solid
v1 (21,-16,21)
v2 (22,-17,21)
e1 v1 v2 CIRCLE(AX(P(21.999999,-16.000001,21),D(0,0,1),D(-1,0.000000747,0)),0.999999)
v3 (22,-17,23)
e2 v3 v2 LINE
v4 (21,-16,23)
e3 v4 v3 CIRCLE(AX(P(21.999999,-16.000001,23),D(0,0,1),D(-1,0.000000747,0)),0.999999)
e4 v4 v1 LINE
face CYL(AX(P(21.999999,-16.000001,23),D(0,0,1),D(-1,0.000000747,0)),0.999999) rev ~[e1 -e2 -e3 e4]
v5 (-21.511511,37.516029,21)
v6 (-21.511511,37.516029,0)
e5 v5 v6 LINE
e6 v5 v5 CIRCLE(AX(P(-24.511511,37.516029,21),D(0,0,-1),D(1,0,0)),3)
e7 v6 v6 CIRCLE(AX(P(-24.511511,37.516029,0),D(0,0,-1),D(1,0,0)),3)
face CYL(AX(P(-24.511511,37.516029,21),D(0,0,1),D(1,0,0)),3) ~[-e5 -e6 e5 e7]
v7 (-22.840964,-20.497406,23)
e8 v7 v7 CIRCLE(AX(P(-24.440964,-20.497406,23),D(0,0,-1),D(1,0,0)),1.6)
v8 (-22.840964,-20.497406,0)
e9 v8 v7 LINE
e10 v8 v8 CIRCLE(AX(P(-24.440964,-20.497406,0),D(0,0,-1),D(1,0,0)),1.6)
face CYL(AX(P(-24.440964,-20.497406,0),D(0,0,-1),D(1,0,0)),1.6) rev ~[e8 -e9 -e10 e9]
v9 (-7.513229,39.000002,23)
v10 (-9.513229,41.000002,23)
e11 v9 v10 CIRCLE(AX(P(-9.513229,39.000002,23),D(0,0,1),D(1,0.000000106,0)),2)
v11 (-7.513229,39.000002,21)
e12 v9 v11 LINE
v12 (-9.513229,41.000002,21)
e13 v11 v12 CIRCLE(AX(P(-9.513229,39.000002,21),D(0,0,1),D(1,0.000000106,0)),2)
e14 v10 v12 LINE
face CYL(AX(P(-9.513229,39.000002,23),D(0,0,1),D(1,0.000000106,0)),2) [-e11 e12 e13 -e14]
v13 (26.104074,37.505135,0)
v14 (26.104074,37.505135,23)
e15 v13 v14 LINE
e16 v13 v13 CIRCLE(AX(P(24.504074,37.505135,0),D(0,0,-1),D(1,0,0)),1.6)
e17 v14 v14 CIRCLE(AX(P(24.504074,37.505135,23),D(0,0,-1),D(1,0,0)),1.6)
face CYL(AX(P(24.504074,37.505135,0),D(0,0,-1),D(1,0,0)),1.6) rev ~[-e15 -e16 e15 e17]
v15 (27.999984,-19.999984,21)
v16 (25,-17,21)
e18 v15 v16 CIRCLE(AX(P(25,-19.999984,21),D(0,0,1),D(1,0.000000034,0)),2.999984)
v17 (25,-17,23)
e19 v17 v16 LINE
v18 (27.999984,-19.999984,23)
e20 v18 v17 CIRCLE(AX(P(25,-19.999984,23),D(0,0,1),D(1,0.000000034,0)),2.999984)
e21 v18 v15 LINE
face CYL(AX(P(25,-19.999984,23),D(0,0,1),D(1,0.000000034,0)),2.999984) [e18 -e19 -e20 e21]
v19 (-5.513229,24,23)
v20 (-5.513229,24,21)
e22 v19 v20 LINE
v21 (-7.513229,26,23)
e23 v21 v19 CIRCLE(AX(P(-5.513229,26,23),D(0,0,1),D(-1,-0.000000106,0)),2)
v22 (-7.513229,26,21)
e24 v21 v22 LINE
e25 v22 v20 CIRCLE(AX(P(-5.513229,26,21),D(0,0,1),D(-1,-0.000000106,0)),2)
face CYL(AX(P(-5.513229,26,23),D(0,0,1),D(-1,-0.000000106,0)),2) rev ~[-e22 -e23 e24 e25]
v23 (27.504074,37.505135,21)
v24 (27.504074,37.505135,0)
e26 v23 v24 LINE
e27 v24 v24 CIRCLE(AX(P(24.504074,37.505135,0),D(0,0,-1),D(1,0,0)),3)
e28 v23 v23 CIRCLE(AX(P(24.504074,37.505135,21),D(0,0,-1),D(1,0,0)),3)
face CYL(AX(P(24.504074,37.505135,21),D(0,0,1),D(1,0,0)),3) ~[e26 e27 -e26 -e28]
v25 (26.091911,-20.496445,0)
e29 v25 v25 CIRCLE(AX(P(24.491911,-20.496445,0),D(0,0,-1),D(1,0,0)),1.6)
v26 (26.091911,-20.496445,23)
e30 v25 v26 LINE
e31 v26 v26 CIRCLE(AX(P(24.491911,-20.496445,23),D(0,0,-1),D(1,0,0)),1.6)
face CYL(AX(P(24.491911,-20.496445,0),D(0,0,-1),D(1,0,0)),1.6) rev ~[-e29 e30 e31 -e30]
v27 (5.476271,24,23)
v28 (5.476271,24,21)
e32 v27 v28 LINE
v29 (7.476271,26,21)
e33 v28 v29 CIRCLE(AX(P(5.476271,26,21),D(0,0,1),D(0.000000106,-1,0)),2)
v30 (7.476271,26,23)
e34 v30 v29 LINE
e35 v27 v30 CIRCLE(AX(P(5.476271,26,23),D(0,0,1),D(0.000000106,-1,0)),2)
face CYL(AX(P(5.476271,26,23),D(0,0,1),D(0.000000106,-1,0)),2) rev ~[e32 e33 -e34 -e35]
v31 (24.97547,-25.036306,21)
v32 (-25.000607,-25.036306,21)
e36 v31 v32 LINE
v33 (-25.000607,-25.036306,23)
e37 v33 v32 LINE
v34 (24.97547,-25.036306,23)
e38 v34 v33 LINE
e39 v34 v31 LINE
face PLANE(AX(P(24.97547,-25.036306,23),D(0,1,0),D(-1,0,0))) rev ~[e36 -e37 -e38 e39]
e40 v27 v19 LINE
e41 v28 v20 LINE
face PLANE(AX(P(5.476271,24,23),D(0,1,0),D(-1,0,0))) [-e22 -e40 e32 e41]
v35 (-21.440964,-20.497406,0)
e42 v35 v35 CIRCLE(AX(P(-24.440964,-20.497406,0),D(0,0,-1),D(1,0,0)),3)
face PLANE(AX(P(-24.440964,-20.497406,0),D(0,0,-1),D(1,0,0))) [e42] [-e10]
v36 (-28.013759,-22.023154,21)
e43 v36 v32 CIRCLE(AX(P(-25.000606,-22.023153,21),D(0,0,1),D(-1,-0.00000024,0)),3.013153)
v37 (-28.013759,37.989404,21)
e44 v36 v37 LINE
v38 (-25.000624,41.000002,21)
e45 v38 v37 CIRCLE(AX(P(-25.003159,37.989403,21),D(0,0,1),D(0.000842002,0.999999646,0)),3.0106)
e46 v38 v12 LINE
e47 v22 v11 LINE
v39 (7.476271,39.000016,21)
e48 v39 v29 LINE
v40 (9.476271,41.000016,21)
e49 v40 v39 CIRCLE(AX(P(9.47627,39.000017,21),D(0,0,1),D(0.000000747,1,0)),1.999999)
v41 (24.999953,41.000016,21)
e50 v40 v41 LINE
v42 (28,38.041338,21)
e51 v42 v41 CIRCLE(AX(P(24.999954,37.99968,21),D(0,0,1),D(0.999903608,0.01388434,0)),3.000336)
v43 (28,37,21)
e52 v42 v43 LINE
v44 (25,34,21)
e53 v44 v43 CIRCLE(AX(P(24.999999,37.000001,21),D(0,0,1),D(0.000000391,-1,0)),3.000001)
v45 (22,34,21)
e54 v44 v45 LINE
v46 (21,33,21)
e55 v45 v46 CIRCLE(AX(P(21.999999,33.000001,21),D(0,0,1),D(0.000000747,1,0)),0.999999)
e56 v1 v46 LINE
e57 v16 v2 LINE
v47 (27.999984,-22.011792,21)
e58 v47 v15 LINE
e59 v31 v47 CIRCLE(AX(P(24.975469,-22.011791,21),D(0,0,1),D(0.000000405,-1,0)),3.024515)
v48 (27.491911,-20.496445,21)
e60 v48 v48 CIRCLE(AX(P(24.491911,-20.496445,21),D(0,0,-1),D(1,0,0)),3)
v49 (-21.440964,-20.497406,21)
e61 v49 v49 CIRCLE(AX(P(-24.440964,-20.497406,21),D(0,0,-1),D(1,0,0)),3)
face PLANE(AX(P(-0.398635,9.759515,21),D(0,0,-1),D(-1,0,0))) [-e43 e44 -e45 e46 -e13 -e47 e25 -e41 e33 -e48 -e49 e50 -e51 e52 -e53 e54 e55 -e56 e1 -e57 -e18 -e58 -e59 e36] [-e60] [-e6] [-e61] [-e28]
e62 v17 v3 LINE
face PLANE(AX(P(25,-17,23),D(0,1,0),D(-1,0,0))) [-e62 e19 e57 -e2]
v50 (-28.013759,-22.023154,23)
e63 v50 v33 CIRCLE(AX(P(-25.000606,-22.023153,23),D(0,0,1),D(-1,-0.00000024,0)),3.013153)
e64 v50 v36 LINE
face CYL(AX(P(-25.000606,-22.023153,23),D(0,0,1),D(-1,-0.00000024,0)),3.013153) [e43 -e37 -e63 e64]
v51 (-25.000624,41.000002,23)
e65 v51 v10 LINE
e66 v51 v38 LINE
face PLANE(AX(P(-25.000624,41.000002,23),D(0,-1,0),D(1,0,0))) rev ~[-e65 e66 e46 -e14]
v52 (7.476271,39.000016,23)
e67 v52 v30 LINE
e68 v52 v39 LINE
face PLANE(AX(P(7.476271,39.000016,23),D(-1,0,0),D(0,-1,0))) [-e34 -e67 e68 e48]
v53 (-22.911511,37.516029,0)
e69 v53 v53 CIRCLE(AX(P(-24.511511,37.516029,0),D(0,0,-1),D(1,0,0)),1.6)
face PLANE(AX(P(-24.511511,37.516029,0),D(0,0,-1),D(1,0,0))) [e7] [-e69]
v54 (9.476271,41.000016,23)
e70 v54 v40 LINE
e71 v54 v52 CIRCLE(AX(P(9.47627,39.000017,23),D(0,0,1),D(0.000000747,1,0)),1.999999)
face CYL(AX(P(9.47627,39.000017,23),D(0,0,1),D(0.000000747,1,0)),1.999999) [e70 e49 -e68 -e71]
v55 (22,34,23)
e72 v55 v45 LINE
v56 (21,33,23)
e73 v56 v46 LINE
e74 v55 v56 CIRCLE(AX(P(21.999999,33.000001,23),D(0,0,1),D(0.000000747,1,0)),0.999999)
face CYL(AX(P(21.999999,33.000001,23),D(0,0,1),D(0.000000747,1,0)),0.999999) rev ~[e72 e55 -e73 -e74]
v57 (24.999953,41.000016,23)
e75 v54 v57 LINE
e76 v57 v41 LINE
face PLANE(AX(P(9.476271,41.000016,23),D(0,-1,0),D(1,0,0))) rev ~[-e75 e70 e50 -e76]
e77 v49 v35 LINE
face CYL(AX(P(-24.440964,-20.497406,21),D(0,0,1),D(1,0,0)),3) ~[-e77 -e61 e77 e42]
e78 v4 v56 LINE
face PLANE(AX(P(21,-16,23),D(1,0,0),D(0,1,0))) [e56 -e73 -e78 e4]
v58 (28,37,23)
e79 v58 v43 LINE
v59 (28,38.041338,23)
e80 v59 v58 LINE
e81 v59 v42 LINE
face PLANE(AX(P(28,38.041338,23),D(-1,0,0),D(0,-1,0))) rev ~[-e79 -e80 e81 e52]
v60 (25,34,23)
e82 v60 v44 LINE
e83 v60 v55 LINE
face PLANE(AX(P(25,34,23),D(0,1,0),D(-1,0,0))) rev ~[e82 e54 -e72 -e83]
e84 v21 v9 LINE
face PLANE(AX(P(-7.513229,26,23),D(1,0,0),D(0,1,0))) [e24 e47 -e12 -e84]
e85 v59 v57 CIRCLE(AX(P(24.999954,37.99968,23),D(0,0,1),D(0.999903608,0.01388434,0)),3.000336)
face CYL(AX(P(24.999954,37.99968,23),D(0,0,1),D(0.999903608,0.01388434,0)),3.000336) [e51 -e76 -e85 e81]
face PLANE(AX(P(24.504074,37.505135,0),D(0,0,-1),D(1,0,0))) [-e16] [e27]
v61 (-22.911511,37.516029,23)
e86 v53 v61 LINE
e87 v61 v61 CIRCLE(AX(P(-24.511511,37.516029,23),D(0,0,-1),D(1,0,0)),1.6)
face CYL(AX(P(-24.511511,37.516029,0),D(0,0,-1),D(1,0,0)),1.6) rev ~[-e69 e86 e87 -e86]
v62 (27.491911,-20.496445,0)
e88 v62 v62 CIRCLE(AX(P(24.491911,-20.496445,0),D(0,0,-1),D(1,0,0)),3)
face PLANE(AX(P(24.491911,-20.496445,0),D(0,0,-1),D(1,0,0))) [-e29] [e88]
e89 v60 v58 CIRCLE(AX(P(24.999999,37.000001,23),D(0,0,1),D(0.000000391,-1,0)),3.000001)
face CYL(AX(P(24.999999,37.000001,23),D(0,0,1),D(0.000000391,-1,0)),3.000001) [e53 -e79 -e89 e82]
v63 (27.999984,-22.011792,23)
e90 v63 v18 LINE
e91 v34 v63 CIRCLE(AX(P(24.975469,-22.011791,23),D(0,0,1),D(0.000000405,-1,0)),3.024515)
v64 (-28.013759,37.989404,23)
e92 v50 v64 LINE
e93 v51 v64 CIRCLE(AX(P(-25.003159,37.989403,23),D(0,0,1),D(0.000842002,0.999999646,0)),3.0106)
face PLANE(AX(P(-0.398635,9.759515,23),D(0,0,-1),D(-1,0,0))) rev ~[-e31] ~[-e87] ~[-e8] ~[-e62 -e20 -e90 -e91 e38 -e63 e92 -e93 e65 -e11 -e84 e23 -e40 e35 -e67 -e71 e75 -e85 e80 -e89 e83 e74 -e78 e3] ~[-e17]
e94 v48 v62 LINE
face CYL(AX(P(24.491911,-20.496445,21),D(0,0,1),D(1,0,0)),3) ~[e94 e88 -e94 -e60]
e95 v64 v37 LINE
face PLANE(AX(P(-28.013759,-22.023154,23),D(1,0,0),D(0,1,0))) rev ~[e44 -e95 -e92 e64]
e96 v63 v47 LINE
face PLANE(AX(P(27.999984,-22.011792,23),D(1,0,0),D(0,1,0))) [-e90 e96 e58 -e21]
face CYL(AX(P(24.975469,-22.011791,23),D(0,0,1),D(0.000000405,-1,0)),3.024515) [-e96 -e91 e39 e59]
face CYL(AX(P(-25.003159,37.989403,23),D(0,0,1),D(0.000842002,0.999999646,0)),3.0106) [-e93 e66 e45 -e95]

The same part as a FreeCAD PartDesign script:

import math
import FreeCAD as App
import Part
import Sketcher

V = App.Vector

doc = App.newDocument("Part")
body = doc.addObject("PartDesign::Body", "Body")

# Sketch on XY plane
sketch1 = body.newObject("Sketcher::SketchObject", "Sketch")
sketch1.AttachmentSupport = (doc.getObject("XY_Plane"), [""])
sketch1.MapMode = "FlatFace"
sketch1.addGeometry(Part.LineSegment(V(-25.000607, -25.036306, 0), V(24.97547, -25.036306, 0)), False)
sketch1.addGeometry(Part.ArcOfCircle(Part.Circle(V(24.975469, -22.011791, 0), V(0, 0, 1), 3.024515), math.radians(-89.999977), math.radians(-0.000023)), False)
sketch1.addGeometry(Part.LineSegment(V(27.999984, -22.011792, 0), V(27.999984, -19.999984, 0)), False)
sketch1.addGeometry(Part.ArcOfCircle(Part.Circle(V(25, -19.999984, 0), V(0, 0, 1), 2.999984), math.radians(0.000002), math.radians(89.999998)), False)
sketch1.addGeometry(Part.LineSegment(V(25, -17, 0), V(22, -17, 0)), False)
sketch1.addGeometry(Part.ArcOfCircle(Part.Circle(V(21.999999, -16.000001, 0), V(0, 0, 1), 0.999999), math.radians(179.999957), math.radians(270.000043)), False)
sketch1.addGeometry(Part.LineSegment(V(21, -16, 0), V(21, 33, 0)), False)
sketch1.addGeometry(Part.ArcOfCircle(Part.Circle(V(21.999999, 33.000001, 0), V(0, 0, 1), 0.999999), math.radians(89.999957), math.radians(180.000043)), False)
sketch1.addGeometry(Part.LineSegment(V(22, 34, 0), V(25, 34, 0)), False)
sketch1.addGeometry(Part.ArcOfCircle(Part.Circle(V(24.999999, 37.000001, 0), V(0, 0, 1), 3.000001), math.radians(-89.999978), math.radians(-0.000022)), False)
sketch1.addGeometry(Part.LineSegment(V(28, 37, 0), V(28, 38.041338, 0)), False)
sketch1.addGeometry(Part.ArcOfCircle(Part.Circle(V(24.999954, 37.99968, 0), V(0, 0, 1), 3.000336), math.radians(0.79554), math.radians(90.00001)), False)
sketch1.addGeometry(Part.LineSegment(V(24.999953, 41.000016, 0), V(9.476271, 41.000016, 0)), False)
sketch1.addGeometry(Part.ArcOfCircle(Part.Circle(V(9.47627, 39.000017, 0), V(0, 0, 1), 1.999999), math.radians(89.999957), math.radians(180.000043)), False)
sketch1.addGeometry(Part.LineSegment(V(7.476271, 39.000016, 0), V(7.476271, 26, 0)), False)
sketch1.addGeometry(Part.ArcOfCircle(Part.Circle(V(5.476271, 26, 0), V(0, 0, 1), 2), math.radians(-89.999994), math.radians(-0.000006)), False)
sketch1.addGeometry(Part.LineSegment(V(5.476271, 24, 0), V(-5.513229, 24, 0)), False)
sketch1.addGeometry(Part.ArcOfCircle(Part.Circle(V(-5.513229, 26, 0), V(0, 0, 1), 2), math.radians(-179.999994), math.radians(-90.000006)), False)
sketch1.addGeometry(Part.LineSegment(V(-7.513229, 26, 0), V(-7.513229, 39.000002, 0)), False)
sketch1.addGeometry(Part.ArcOfCircle(Part.Circle(V(-9.513229, 39.000002, 0), V(0, 0, 1), 2), math.radians(0.000006), math.radians(89.999994)), False)
sketch1.addGeometry(Part.LineSegment(V(-9.513229, 41.000002, 0), V(-25.000624, 41.000002, 0)), False)
sketch1.addGeometry(Part.ArcOfCircle(Part.Circle(V(-25.003159, 37.989403, 0), V(0, 0, 1), 3.0106), math.radians(89.951757), math.radians(179.999981)), False)
sketch1.addGeometry(Part.LineSegment(V(-28.013759, 37.989404, 0), V(-28.013759, -22.023154, 0)), False)
sketch1.addGeometry(Part.ArcOfCircle(Part.Circle(V(-25.000606, -22.023153, 0), V(0, 0, 1), 3.013153), math.radians(-179.999986), math.radians(-90.000014)), False)
sketch1.addConstraint(Sketcher.Constraint("Tangent", 0, 2, 1, 1))
sketch1.addConstraint(Sketcher.Constraint("Tangent", 1, 2, 2, 1))
sketch1.addConstraint(Sketcher.Constraint("Tangent", 2, 2, 3, 1))
sketch1.addConstraint(Sketcher.Constraint("Tangent", 3, 2, 4, 1))
sketch1.addConstraint(Sketcher.Constraint("Tangent", 4, 2, 5, 2))
sketch1.addConstraint(Sketcher.Constraint("Tangent", 5, 1, 6, 1))
sketch1.addConstraint(Sketcher.Constraint("Tangent", 6, 2, 7, 2))
sketch1.addConstraint(Sketcher.Constraint("Tangent", 7, 1, 8, 1))
sketch1.addConstraint(Sketcher.Constraint("Tangent", 8, 2, 9, 1))
sketch1.addConstraint(Sketcher.Constraint("Tangent", 9, 2, 10, 1))
sketch1.addConstraint(Sketcher.Constraint("Coincident", 10, 2, 11, 1))
sketch1.addConstraint(Sketcher.Constraint("Tangent", 11, 2, 12, 1))
sketch1.addConstraint(Sketcher.Constraint("Tangent", 12, 2, 13, 1))
sketch1.addConstraint(Sketcher.Constraint("Tangent", 13, 2, 14, 1))
sketch1.addConstraint(Sketcher.Constraint("Tangent", 14, 2, 15, 2))
sketch1.addConstraint(Sketcher.Constraint("Tangent", 15, 1, 16, 1))
sketch1.addConstraint(Sketcher.Constraint("Tangent", 16, 2, 17, 2))
sketch1.addConstraint(Sketcher.Constraint("Tangent", 17, 1, 18, 1))
sketch1.addConstraint(Sketcher.Constraint("Tangent", 18, 2, 19, 1))
sketch1.addConstraint(Sketcher.Constraint("Tangent", 19, 2, 20, 1))
sketch1.addConstraint(Sketcher.Constraint("Coincident", 20, 2, 21, 1))
sketch1.addConstraint(Sketcher.Constraint("Tangent", 21, 2, 22, 1))
sketch1.addConstraint(Sketcher.Constraint("Tangent", 22, 2, 23, 1))
sketch1.addConstraint(Sketcher.Constraint("Tangent", 23, 2, 0, 1))
sketch1.addConstraint(Sketcher.Constraint("Horizontal", 0))
sketch1.addConstraint(Sketcher.Constraint("Vertical", 2))
sketch1.addConstraint(Sketcher.Constraint("Horizontal", 4))
sketch1.addConstraint(Sketcher.Constraint("Vertical", 6))
sketch1.addConstraint(Sketcher.Constraint("Horizontal", 8))
sketch1.addConstraint(Sketcher.Constraint("Vertical", 10))
sketch1.addConstraint(Sketcher.Constraint("Horizontal", 12))
sketch1.addConstraint(Sketcher.Constraint("Vertical", 14))
sketch1.addConstraint(Sketcher.Constraint("Horizontal", 16))
sketch1.addConstraint(Sketcher.Constraint("Vertical", 18))
sketch1.addConstraint(Sketcher.Constraint("Horizontal", 20))
sketch1.addConstraint(Sketcher.Constraint("Vertical", 22))
sketch1.addConstraint(Sketcher.Constraint("Equal", 5, 7))
sketch1.addConstraint(Sketcher.Constraint("Equal", 13, 15))
sketch1.addConstraint(Sketcher.Constraint("Equal", 15, 17))
sketch1.addConstraint(Sketcher.Constraint("Equal", 17, 19))
sketch1.addConstraint(Sketcher.Constraint("Vertical", 3, 3, 9, 3))
sketch1.addConstraint(Sketcher.Constraint("Radius", 5, 0.999999))
sketch1.addConstraint(Sketcher.Constraint("Radius", 9, 3.000001))
sketch1.addConstraint(Sketcher.Constraint("Radius", 13, 1.999999))
sketch1.addConstraint(Sketcher.Constraint("DistanceX", 4, 2, 4, 1, 3.0))
sketch1.addConstraint(Sketcher.Constraint("DistanceY", 6, 1, 6, 2, 49.0))
sketch1.addConstraint(Sketcher.Constraint("DistanceX", -1, 1, 3, 3, 25.0))
sketch1.addConstraint(Sketcher.Constraint("DistanceY", 5, 3, -1, 1, 16.000001))
sketch1.addConstraint(Sketcher.Constraint("DistanceY", -1, 1, 15, 3, 26.0))
sketch1.addConstraint(Sketcher.Constraint("DistanceY", -1, 1, 19, 3, 39.000002))
sketch1.addConstraint(Sketcher.Constraint("DistanceY", 3, 3, 13, 3, 59.000002))
sketch1.addConstraint(Sketcher.Constraint("Radius", 21, 3.0106))
sketch1.addConstraint(Sketcher.Constraint("DistanceX", 16, 2, 16, 1, 10.9895))
sketch1.addConstraint(Sketcher.Constraint("Radius", 1, 3.024515))
sketch1.addConstraint(Sketcher.Constraint("Radius", 3, 2.999984))
sketch1.addConstraint(Sketcher.Constraint("Radius", 11, 3.000336))
sketch1.addConstraint(Sketcher.Constraint("Radius", 23, 3.013153))
sketch1.addConstraint(Sketcher.Constraint("DistanceY", 10, 1, 10, 2, 1.041338))
sketch1.addConstraint(Sketcher.Constraint("DistanceX", 15, 3, 0, 2, 19.499199))
sketch1.addConstraint(Sketcher.Constraint("DistanceX", 0, 1, 0, 2, 49.976077))
sketch1.addConstraint(Sketcher.Constraint("DistanceX", 20, 2, 20, 1, 15.487395))
sketch1.addConstraint(Sketcher.Constraint("DistanceY", 2, 1, 2, 2, 2.011808))
pad1 = body.newObject("PartDesign::Pad", "Pad")
pad1.Profile = sketch1
pad1.Length = 2
pad1.Reversed = True

# Sketch on XY plane
sketch2 = body.newObject("Sketcher::SketchObject", "Sketch001")
sketch2.AttachmentSupport = (doc.getObject("XY_Plane"), [""])
sketch2.MapMode = "FlatFace"
sketch2.AttachmentOffset = App.Placement(V(0, 0, -2), App.Rotation())
sketch2.addGeometry(Part.Circle(V(-24.440964, -20.497406, 0), V(0, 0, 1), 3), False)
sketch2.addGeometry(Part.Circle(V(24.491911, -20.496445, 0), V(0, 0, 1), 3), False)
sketch2.addGeometry(Part.Circle(V(-24.511511, 37.516029, 0), V(0, 0, 1), 3), False)
sketch2.addGeometry(Part.Circle(V(24.504074, 37.505135, 0), V(0, 0, 1), 3), False)
sketch2.addConstraint(Sketcher.Constraint("Equal", 0, 1))
sketch2.addConstraint(Sketcher.Constraint("Equal", 1, 2))
sketch2.addConstraint(Sketcher.Constraint("Equal", 2, 3))
sketch2.addConstraint(Sketcher.Constraint("Diameter", 0, 6.0))
sketch2.addConstraint(Sketcher.Constraint("DistanceX", -1, 1, 1, 3, 24.491911))
sketch2.addConstraint(Sketcher.Constraint("DistanceX", 2, 3, -1, 1, 24.511511))
sketch2.addConstraint(Sketcher.Constraint("DistanceY", -1, 1, 2, 3, 37.516029))
sketch2.addConstraint(Sketcher.Constraint("DistanceY", 0, 3, 1, 3, 0.000961))
sketch2.addConstraint(Sketcher.Constraint("DistanceY", 1, 3, 3, 3, 58.00158))
sketch2.addConstraint(Sketcher.Constraint("DistanceX", 0, 3, -1, 1, 24.440964))
sketch2.addConstraint(Sketcher.Constraint("DistanceY", 0, 3, -1, 1, 20.497406))
sketch2.addConstraint(Sketcher.Constraint("DistanceX", -1, 1, 3, 3, 24.504074))
pad2 = body.newObject("PartDesign::Pad", "Pad001")
pad2.Profile = sketch2
pad2.Length = 21
pad2.Reversed = True

# Sketch on XY plane
sketch3 = body.newObject("Sketcher::SketchObject", "Sketch002")
sketch3.AttachmentSupport = (doc.getObject("XY_Plane"), [""])
sketch3.MapMode = "FlatFace"
sketch3.AttachmentOffset = App.Placement(V(0, 0, -23), App.Rotation())
sketch3.addGeometry(Part.Circle(V(-24.440964, -20.497406, 0), V(0, 0, 1), 1.6), False)
sketch3.addGeometry(Part.Circle(V(24.491911, -20.496445, 0), V(0, 0, 1), 1.6), False)
sketch3.addGeometry(Part.Circle(V(-24.511511, 37.516029, 0), V(0, 0, 1), 1.6), False)
sketch3.addGeometry(Part.Circle(V(24.504074, 37.505135, 0), V(0, 0, 1), 1.6), False)
sketch3.addConstraint(Sketcher.Constraint("Equal", 0, 1))
sketch3.addConstraint(Sketcher.Constraint("Equal", 1, 2))
sketch3.addConstraint(Sketcher.Constraint("Equal", 2, 3))
sketch3.addConstraint(Sketcher.Constraint("Diameter", 0, 3.2))
sketch3.addConstraint(Sketcher.Constraint("DistanceX", -1, 1, 1, 3, 24.491911))
sketch3.addConstraint(Sketcher.Constraint("DistanceX", 2, 3, -1, 1, 24.511511))
sketch3.addConstraint(Sketcher.Constraint("DistanceY", -1, 1, 2, 3, 37.516029))
sketch3.addConstraint(Sketcher.Constraint("DistanceY", 0, 3, 1, 3, 0.000961))
sketch3.addConstraint(Sketcher.Constraint("DistanceY", 1, 3, 3, 3, 58.00158))
sketch3.addConstraint(Sketcher.Constraint("DistanceX", 0, 3, -1, 1, 24.440964))
sketch3.addConstraint(Sketcher.Constraint("DistanceY", 0, 3, -1, 1, 20.497406))
sketch3.addConstraint(Sketcher.Constraint("DistanceX", -1, 1, 3, 3, 24.504074))
pocket1 = body.newObject("PartDesign::Pocket", "Pocket")
pocket1.Profile = sketch3
pocket1.Length = 30
pocket1.Reversed = True
body2 = doc.addObject("PartDesign::Body", "Body001")
doc.recompute()

body.Placement = App.Placement(V(0, 0, 23), App.Rotation(V(0, 0, 1), 0))
boolean = body2.newObject("PartDesign::Boolean", "Boolean")
boolean.Type = "Fuse"
boolean.addObjects([body])

doc.recompute()
